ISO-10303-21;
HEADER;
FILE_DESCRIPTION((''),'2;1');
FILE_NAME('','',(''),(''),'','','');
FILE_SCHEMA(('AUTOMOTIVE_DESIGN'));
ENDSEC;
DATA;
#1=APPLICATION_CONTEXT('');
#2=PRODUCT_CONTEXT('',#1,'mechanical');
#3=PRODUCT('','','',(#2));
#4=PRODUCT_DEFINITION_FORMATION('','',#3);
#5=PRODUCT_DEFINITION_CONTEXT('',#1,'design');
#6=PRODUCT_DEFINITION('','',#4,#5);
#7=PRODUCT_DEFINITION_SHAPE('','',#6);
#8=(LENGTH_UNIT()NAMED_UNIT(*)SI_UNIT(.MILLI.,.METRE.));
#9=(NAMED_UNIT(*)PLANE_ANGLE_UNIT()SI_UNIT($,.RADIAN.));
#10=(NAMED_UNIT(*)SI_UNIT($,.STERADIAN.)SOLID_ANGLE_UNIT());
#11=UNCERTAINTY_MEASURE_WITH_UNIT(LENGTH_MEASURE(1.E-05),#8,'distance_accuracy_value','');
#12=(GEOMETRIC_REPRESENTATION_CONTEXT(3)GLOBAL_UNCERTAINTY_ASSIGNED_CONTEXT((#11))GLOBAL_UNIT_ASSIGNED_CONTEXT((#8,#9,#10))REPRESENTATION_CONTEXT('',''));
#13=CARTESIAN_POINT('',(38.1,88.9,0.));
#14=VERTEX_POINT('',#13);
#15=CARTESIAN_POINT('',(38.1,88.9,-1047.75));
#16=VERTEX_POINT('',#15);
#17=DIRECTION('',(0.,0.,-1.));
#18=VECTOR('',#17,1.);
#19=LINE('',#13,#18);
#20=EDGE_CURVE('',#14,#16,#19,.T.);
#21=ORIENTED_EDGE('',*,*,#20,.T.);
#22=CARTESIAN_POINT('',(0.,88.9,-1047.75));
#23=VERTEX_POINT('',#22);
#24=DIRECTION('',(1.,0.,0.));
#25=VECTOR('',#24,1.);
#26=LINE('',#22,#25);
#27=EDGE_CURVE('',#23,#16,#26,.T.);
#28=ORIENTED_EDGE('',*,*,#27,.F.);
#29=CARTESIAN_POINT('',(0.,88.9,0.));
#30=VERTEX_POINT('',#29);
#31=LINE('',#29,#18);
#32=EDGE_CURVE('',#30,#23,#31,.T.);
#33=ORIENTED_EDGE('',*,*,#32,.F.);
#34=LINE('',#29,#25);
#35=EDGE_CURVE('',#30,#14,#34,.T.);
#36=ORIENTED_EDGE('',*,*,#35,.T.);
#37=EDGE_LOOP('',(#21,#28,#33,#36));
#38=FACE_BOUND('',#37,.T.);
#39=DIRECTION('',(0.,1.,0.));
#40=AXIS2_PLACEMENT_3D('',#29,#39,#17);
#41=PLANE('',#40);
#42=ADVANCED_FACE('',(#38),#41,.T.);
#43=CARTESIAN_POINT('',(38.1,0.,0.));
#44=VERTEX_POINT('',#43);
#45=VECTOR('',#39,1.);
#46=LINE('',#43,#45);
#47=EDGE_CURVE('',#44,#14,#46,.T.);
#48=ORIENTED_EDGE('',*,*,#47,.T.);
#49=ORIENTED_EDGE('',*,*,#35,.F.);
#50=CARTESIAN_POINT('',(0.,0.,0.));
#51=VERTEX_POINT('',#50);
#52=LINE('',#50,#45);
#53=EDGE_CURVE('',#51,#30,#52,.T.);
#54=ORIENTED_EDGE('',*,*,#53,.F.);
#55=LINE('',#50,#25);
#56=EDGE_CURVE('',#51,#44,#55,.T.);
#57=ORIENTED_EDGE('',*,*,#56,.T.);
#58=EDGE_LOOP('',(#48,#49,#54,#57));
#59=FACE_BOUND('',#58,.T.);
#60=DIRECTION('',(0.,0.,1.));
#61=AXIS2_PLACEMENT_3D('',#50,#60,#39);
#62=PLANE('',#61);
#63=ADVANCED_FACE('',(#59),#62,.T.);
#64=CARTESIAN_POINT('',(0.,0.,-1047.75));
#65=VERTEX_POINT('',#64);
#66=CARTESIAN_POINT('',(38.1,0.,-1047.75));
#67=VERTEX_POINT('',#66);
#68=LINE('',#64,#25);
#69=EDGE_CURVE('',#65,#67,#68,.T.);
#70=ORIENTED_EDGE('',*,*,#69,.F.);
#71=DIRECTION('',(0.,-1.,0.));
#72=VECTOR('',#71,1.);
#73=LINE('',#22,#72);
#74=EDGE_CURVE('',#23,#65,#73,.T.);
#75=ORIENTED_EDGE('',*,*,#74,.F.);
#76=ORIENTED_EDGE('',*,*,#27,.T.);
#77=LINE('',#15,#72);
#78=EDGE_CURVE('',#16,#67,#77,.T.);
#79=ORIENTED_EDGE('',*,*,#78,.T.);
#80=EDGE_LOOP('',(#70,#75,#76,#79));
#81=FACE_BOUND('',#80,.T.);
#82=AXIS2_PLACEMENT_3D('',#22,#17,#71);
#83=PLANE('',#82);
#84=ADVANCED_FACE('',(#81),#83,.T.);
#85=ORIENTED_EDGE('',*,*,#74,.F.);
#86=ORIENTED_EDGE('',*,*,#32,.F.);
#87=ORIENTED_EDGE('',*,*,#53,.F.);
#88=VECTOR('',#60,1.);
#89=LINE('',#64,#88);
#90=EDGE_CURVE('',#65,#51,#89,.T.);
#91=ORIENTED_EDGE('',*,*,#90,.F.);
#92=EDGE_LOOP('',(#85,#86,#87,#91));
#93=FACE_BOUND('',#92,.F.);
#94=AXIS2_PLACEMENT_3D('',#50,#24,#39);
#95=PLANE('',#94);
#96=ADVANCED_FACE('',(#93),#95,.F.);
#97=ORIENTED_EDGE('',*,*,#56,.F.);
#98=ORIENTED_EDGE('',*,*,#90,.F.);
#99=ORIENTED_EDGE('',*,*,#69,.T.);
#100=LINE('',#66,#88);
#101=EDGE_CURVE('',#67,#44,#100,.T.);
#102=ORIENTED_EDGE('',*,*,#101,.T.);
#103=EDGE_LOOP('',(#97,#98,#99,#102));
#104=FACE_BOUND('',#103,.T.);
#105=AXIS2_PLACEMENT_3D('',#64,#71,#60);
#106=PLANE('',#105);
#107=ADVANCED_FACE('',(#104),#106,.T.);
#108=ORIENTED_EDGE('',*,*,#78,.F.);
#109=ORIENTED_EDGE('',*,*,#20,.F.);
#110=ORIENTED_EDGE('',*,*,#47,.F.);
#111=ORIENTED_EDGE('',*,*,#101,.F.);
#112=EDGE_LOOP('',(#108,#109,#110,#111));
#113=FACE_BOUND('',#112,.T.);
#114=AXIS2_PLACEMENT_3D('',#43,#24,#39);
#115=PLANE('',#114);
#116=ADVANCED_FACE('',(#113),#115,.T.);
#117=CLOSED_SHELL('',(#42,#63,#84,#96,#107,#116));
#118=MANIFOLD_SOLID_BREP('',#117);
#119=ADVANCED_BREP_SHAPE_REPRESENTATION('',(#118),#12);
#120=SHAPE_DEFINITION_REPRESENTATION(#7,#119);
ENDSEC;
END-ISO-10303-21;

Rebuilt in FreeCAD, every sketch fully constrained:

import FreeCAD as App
import Part
import Sketcher
from FreeCAD import Vector
Q = App.Units.Quantity


def add_polygon(sketch, points):
    """Adds a closed chain of lines whose ends are joined by coincident constraints."""
    first, n = sketch.GeometryCount, len(points)
    for a, b in zip(points, points[1:] + points[:1]):
        sketch.addGeometry(Part.LineSegment(App.Vector(*a, 0), App.Vector(*b, 0)), False)
    for i in range(n):
        sketch.addConstraint(Sketcher.Constraint("Coincident", first + i, 2, first + (i + 1) % n, 1))

doc = App.newDocument("Part")
body = doc.addObject("PartDesign::Body", "Body")

sketch1 = doc.addObject("Sketcher::SketchObject", "Sketch")
body.addObject(sketch1)
sketch1.AttachmentSupport = (doc.YZ_Plane, [""])
sketch1.MapMode = "FlatFace"
add_polygon(sketch1, [(88.9, 0), (0, 0), (0, -1047.75), (88.9, -1047.75)])
sketch1.addConstraint(Sketcher.Constraint("Horizontal", 0))
sketch1.addConstraint(Sketcher.Constraint("Vertical", 1))
sketch1.addConstraint(Sketcher.Constraint("Horizontal", 2))
sketch1.addConstraint(Sketcher.Constraint("Vertical", 3))
sketch1.addConstraint(Sketcher.Constraint("Coincident", 0, 2, -1, 1))
sketch1.addConstraint(Sketcher.Constraint("DistanceX", 0, 2, 0, 1, Q("3.5 in")))
sketch1.addConstraint(Sketcher.Constraint("DistanceY", 1, 2, 1, 1, Q("41.25 in")))
pad1 = doc.addObject("PartDesign::Pad", "Pad")
body.addObject(pad1)
pad1.Profile = sketch1
pad1.Length = Q("1.5 in")

doc.recompute()
